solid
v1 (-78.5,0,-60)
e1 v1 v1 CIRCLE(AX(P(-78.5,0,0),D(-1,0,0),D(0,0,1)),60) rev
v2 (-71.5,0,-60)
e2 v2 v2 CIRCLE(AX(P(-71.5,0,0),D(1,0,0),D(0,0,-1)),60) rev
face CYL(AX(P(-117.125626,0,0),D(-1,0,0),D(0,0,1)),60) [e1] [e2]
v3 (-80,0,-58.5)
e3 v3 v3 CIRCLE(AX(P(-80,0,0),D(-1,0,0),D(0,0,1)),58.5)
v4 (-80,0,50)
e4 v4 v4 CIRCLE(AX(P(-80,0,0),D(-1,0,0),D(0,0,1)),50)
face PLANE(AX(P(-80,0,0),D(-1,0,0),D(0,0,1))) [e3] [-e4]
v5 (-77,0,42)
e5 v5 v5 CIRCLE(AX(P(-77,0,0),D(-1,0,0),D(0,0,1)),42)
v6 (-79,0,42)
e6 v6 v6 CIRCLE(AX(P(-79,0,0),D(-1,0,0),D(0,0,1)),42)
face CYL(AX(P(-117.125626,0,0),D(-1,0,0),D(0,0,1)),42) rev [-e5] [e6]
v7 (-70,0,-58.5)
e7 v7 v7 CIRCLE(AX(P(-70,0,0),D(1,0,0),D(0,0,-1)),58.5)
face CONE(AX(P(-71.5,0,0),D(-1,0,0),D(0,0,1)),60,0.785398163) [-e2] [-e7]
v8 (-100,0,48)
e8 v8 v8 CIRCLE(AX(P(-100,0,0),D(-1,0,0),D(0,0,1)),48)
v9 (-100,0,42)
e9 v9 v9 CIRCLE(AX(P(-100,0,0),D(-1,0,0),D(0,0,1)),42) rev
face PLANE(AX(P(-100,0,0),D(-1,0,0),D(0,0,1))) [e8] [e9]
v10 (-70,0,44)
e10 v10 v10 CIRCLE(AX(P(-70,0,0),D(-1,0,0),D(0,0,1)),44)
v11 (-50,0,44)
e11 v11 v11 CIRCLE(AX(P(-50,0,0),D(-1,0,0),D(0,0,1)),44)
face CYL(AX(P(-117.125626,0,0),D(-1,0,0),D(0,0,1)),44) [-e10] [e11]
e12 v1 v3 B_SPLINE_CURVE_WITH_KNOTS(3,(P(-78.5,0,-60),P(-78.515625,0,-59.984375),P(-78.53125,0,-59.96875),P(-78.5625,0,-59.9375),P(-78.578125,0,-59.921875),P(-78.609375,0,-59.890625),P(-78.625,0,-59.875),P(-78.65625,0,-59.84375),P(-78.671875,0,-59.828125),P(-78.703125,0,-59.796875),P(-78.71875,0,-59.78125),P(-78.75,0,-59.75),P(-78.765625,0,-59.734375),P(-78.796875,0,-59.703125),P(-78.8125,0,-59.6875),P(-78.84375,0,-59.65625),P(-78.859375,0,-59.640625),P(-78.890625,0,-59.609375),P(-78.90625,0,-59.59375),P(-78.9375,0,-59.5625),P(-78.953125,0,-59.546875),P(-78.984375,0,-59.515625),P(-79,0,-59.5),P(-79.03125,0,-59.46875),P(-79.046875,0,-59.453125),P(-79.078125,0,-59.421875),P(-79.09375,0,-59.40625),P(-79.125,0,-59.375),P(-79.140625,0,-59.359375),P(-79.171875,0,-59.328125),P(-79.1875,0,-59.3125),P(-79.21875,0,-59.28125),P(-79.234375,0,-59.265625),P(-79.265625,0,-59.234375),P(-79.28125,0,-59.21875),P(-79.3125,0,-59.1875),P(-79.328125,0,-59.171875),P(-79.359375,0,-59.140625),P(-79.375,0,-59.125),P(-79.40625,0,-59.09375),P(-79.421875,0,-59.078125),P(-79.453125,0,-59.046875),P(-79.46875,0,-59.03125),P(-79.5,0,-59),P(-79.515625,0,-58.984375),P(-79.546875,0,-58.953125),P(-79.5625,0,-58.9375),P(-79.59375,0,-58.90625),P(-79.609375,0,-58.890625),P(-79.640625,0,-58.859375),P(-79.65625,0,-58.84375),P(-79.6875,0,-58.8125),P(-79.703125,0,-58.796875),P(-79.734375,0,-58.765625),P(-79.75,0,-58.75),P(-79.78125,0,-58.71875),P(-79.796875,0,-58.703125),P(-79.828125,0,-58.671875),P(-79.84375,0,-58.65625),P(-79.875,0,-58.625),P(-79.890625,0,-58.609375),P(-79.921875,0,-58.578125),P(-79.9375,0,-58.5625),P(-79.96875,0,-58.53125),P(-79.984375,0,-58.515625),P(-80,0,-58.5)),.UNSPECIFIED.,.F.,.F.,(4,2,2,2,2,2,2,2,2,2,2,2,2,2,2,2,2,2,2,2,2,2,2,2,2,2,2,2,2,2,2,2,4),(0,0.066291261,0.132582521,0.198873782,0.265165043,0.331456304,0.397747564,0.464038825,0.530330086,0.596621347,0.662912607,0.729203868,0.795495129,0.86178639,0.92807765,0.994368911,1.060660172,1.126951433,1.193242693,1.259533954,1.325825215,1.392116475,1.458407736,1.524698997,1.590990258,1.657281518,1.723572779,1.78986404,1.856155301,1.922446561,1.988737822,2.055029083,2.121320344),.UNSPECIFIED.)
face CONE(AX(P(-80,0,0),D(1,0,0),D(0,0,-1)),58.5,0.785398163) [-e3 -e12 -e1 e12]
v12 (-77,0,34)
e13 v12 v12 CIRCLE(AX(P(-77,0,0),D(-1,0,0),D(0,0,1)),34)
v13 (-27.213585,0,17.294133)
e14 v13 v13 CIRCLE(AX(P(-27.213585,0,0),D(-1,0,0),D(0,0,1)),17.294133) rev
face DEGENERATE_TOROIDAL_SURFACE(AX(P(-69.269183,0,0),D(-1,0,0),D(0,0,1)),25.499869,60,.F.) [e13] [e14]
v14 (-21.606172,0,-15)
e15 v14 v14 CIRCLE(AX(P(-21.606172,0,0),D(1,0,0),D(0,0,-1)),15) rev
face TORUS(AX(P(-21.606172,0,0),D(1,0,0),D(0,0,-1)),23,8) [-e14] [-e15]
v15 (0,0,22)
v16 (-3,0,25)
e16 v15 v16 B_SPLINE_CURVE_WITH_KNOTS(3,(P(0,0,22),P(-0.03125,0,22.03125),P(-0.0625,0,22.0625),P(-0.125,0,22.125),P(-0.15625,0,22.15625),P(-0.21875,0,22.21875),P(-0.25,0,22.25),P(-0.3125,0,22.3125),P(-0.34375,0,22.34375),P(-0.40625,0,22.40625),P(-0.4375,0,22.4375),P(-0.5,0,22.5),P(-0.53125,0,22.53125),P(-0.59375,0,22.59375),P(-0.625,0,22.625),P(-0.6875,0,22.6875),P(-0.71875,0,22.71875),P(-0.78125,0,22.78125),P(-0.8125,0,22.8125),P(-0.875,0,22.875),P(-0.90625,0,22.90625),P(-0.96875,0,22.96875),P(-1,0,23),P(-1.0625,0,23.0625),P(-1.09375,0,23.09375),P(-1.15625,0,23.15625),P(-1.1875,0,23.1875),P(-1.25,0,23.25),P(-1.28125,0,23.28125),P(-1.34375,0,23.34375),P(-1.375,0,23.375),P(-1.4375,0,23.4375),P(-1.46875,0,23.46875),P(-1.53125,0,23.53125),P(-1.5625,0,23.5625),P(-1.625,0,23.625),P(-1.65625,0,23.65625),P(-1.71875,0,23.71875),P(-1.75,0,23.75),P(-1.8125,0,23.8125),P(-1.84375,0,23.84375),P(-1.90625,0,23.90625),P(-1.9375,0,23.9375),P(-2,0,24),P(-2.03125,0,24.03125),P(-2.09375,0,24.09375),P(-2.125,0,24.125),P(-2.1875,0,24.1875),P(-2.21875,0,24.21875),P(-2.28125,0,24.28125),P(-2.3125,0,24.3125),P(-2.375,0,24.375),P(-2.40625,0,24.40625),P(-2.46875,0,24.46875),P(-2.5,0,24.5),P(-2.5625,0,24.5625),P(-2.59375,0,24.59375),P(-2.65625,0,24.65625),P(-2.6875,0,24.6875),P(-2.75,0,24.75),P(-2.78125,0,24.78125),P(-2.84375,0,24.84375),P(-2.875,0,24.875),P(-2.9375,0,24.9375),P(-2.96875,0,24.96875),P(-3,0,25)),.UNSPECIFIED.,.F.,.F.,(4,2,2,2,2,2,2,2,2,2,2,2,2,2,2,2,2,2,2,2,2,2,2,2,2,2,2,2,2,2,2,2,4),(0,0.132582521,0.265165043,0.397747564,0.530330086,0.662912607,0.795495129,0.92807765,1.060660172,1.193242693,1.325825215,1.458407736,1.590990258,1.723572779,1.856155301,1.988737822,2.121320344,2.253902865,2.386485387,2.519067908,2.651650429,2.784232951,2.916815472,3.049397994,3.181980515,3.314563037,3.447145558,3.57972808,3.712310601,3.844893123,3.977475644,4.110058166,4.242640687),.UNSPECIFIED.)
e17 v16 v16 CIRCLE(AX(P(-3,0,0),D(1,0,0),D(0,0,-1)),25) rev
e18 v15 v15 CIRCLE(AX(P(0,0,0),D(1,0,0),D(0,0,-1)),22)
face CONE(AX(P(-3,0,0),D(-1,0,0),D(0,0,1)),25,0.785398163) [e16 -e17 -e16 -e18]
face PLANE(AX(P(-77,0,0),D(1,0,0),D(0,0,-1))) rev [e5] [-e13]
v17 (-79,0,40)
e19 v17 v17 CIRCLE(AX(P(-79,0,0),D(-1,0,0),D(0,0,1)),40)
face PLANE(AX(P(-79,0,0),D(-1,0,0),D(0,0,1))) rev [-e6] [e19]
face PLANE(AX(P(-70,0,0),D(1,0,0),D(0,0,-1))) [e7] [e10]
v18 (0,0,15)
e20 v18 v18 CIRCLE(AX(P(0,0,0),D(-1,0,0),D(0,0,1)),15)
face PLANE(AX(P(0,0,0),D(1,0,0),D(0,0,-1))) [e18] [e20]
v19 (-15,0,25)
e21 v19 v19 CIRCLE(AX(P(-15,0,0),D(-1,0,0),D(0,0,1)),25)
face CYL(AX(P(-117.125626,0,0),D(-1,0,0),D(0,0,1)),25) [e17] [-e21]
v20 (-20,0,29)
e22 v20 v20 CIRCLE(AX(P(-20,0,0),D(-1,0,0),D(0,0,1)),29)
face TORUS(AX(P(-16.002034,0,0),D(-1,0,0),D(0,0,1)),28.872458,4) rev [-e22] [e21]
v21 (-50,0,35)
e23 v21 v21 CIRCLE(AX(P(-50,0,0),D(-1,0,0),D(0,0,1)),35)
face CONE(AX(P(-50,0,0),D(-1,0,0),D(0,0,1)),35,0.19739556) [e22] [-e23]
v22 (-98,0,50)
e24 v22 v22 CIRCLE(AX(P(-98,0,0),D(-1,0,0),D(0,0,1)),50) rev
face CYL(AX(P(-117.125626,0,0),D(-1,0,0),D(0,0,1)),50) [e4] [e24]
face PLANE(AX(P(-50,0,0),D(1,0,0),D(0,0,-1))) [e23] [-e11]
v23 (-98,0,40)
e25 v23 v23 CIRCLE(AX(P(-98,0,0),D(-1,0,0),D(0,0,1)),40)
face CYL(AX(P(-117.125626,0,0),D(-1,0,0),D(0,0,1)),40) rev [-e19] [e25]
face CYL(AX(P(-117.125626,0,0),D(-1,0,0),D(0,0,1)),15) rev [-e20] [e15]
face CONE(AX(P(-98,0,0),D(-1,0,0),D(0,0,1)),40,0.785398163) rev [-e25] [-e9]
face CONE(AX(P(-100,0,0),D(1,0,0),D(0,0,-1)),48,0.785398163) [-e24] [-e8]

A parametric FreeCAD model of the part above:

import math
import FreeCAD as App
import Part
import Sketcher
from FreeCAD import Vector


def edges_at(feature, points):
    """Names of the edges that pass closest to the given points."""
    edges = feature.Shape.Edges
    near = lambda p: min(range(len(edges)), key=lambda i: edges[i].distToShape(Part.Vertex(*p))[0])
    return sorted({f"Edge{near(p) + 1}" for p in points})

doc = App.newDocument("Part")
params = doc.addObject("Spreadsheet::Sheet", "Params")
for row, (alias, value) in enumerate([
    ("sketch1_radius", "60 mm"),
    ("sketch1_radius2", "4 mm"),
    ("sketch1_width", "25 mm"),
    ("sketch1_width2", "15 mm"),
    ("sketch1_width3", "20 mm"),
    ("revolution_angle", "360 deg"),
    ("chamfer_size", "2 mm"),
    ("fillet_radius", "8 mm"),
    ("chamfer2_size", "1.5 mm"),
    ("chamfer3_size", "3 mm"),
], start=1):
    params.set(f"A{row}", alias)
    params.set(f"B{row}", "=" + value)
    params.setAlias(f"B{row}", alias)

body = doc.addObject("PartDesign::Body", "Body")

# Sketch on XY plane
sketch1 = body.newObject("Sketcher::SketchObject", "Sketch")
sketch1.AttachmentSupport = (doc.getObject("XY_Plane"), [""])
sketch1.MapMode = "FlatFace"
sketch1.addGeometry([
    Part.ArcOfCircle(Part.Circle(Vector(-69.269183, -25.499869, 0), Vector(0, 0, 1), 60), math.radians(42.453981), math.radians(97.402967)),  # 0
    Part.LineSegment(Vector(-25, 15, 0), Vector(0, 15, 0)),  # 1
    Part.LineSegment(Vector(0, 15, 0), Vector(0, 25, 0)),  # 2
    Part.LineSegment(Vector(0, 25, 0), Vector(-15, 25, 0)),  # 3
    Part.ArcOfCircle(Part.Circle(Vector(-16.002034, 28.872458, 0), Vector(0, 0, 1), 4), math.radians(178.17278), math.radians(284.507603)),  # 4
    Part.LineSegment(Vector(-20, 29, 0), Vector(-50, 35, 0)),  # 5
    Part.LineSegment(Vector(-50, 35, 0), Vector(-50, 44, 0)),  # 6
    Part.LineSegment(Vector(-50, 44, 0), Vector(-70, 44, 0)),  # 7
    Part.LineSegment(Vector(-70, 44, 0), Vector(-70, 60, 0)),  # 8
    Part.LineSegment(Vector(-70, 60, 0), Vector(-80, 60, 0)),  # 9
    Part.LineSegment(Vector(-80, 60, 0), Vector(-80, 50, 0)),  # 10
    Part.LineSegment(Vector(-80, 50, 0), Vector(-100, 50, 0)),  # 11
    Part.LineSegment(Vector(-100, 50, 0), Vector(-100, 40, 0)),  # 12
    Part.LineSegment(Vector(-100, 40, 0), Vector(-79, 40, 0)),  # 13
    Part.LineSegment(Vector(-79, 40, 0), Vector(-79, 42, 0)),  # 14
    Part.LineSegment(Vector(-79, 42, 0), Vector(-77, 42, 0)),  # 15
    Part.LineSegment(Vector(-77, 42, 0), Vector(-77, 34, 0)),  # 16
], False)
sketch1.addConstraint([
    Sketcher.Constraint("Coincident", 0, 1, 1, 1),
    Sketcher.Constraint("Coincident", 1, 2, 2, 1),
    Sketcher.Constraint("Coincident", 2, 2, 3, 1),
    Sketcher.Constraint("Coincident", 3, 2, 4, 2),
    Sketcher.Constraint("Coincident", 4, 1, 5, 1),
    Sketcher.Constraint("Coincident", 5, 2, 6, 1),
    Sketcher.Constraint("Coincident", 6, 2, 7, 1),
    Sketcher.Constraint("Coincident", 7, 2, 8, 1),
    Sketcher.Constraint("Coincident", 8, 2, 9, 1),
    Sketcher.Constraint("Coincident", 9, 2, 10, 1),
    Sketcher.Constraint("Coincident", 10, 2, 11, 1),
    Sketcher.Constraint("Coincident", 11, 2, 12, 1),
    Sketcher.Constraint("Coincident", 12, 2, 13, 1),
    Sketcher.Constraint("Coincident", 13, 2, 14, 1),
    Sketcher.Constraint("Coincident", 14, 2, 15, 1),
    Sketcher.Constraint("Coincident", 15, 2, 16, 1),
    Sketcher.Constraint("Coincident", 16, 2, 0, 2),
    Sketcher.Constraint("Horizontal", 1),
    Sketcher.Constraint("Vertical", 2),
    Sketcher.Constraint("Horizontal", 3),
    Sketcher.Constraint("Vertical", 6),
    Sketcher.Constraint("Horizontal", 7),
    Sketcher.Constraint("Vertical", 8),
    Sketcher.Constraint("Horizontal", 9),
    Sketcher.Constraint("Vertical", 10),
    Sketcher.Constraint("Horizontal", 11),
    Sketcher.Constraint("Vertical", 12),
    Sketcher.Constraint("Horizontal", 13),
    Sketcher.Constraint("Vertical", 14),
    Sketcher.Constraint("Horizontal", 15),
    Sketcher.Constraint("Vertical", 16),
    Sketcher.Constraint("PointOnObject", 1, 2, -2),
    Sketcher.Constraint("Equal", 7, 11),
    Sketcher.Constraint("Equal", 9, 2),
    Sketcher.Constraint("Equal", 2, 10),
    Sketcher.Constraint("Equal", 10, 12),
    Sketcher.Constraint("Equal", 15, 14),
    Sketcher.Constraint("Radius", 0, 60.0),
    Sketcher.Constraint("Radius", 4, 4.0),
    Sketcher.Constraint("DistanceX", 1, 1, 1, 2, 25.0),
    Sketcher.Constraint("DistanceX", 3, 2, 3, 1, 15.0),
    Sketcher.Constraint("DistanceX", 7, 2, 7, 1, 20.0),
    Sketcher.Constraint("DistanceX", 9, 2, 9, 1, 10.0),
    Sketcher.Constraint("DistanceX", 13, 1, 13, 2, 21.0),
    Sketcher.Constraint("DistanceX", 15, 1, 15, 2, 2.0),
    Sketcher.Constraint("DistanceY", 6, 1, 6, 2, 9.0),
    Sketcher.Constraint("DistanceY", 8, 1, 8, 2, 16.0),
    Sketcher.Constraint("DistanceY", 16, 2, 16, 1, 8.0),
    Sketcher.Constraint("DistanceY", -1, 1, 0, 1, 15.0),
    Sketcher.Constraint("DistanceX", 4, 1, -1, 1, 20.0),
    Sketcher.Constraint("DistanceY", -1, 1, 4, 1, 29.0),
    Sketcher.Constraint("DistanceX", 5, 2, -1, 1, 50.0),
    Sketcher.Constraint("DistanceY", -1, 1, 5, 2, 35.0),
])
sketch1.setExpression("Constraints[37]", "Params.sketch1_radius")
sketch1.setExpression("Constraints[38]", "Params.sketch1_radius2")
sketch1.setExpression("Constraints[39]", "Params.sketch1_width")
sketch1.setExpression("Constraints[40]", "Params.sketch1_width2")
sketch1.setExpression("Constraints[41]", "Params.sketch1_width3")
revolution = body.newObject("PartDesign::Revolution", "Revolution")
revolution.Profile = sketch1
revolution.ReferenceAxis = (sketch1, ["H_Axis"])
revolution.setExpression("Angle", "Params.revolution_angle")
doc.recompute()

chamfer = body.newObject("PartDesign::Chamfer", "Chamfer")
chamfer.Base = (revolution, edges_at(revolution, [(-100, 0, -40), (-100, 0, -50)]))
chamfer.setExpression("Size", "Params.chamfer_size")
doc.recompute()

fillet = body.newObject("PartDesign::Fillet", "Fillet")
fillet.Base = (chamfer, edges_at(chamfer, [(-25, 0, -15)]))
fillet.setExpression("Radius", "Params.fillet_radius")
doc.recompute()

chamfer2 = body.newObject("PartDesign::Chamfer", "Chamfer001")
chamfer2.Base = (fillet, edges_at(fillet, [(-80, 0, -60), (-70, 0, -60)]))
chamfer2.setExpression("Size", "Params.chamfer2_size")
doc.recompute()

chamfer3 = body.newObject("PartDesign::Chamfer", "Chamfer002")
chamfer3.Base = (chamfer2, edges_at(chamfer2, [(0, 0, -25)]))
chamfer3.setExpression("Size", "Params.chamfer3_size")

doc.recompute()
